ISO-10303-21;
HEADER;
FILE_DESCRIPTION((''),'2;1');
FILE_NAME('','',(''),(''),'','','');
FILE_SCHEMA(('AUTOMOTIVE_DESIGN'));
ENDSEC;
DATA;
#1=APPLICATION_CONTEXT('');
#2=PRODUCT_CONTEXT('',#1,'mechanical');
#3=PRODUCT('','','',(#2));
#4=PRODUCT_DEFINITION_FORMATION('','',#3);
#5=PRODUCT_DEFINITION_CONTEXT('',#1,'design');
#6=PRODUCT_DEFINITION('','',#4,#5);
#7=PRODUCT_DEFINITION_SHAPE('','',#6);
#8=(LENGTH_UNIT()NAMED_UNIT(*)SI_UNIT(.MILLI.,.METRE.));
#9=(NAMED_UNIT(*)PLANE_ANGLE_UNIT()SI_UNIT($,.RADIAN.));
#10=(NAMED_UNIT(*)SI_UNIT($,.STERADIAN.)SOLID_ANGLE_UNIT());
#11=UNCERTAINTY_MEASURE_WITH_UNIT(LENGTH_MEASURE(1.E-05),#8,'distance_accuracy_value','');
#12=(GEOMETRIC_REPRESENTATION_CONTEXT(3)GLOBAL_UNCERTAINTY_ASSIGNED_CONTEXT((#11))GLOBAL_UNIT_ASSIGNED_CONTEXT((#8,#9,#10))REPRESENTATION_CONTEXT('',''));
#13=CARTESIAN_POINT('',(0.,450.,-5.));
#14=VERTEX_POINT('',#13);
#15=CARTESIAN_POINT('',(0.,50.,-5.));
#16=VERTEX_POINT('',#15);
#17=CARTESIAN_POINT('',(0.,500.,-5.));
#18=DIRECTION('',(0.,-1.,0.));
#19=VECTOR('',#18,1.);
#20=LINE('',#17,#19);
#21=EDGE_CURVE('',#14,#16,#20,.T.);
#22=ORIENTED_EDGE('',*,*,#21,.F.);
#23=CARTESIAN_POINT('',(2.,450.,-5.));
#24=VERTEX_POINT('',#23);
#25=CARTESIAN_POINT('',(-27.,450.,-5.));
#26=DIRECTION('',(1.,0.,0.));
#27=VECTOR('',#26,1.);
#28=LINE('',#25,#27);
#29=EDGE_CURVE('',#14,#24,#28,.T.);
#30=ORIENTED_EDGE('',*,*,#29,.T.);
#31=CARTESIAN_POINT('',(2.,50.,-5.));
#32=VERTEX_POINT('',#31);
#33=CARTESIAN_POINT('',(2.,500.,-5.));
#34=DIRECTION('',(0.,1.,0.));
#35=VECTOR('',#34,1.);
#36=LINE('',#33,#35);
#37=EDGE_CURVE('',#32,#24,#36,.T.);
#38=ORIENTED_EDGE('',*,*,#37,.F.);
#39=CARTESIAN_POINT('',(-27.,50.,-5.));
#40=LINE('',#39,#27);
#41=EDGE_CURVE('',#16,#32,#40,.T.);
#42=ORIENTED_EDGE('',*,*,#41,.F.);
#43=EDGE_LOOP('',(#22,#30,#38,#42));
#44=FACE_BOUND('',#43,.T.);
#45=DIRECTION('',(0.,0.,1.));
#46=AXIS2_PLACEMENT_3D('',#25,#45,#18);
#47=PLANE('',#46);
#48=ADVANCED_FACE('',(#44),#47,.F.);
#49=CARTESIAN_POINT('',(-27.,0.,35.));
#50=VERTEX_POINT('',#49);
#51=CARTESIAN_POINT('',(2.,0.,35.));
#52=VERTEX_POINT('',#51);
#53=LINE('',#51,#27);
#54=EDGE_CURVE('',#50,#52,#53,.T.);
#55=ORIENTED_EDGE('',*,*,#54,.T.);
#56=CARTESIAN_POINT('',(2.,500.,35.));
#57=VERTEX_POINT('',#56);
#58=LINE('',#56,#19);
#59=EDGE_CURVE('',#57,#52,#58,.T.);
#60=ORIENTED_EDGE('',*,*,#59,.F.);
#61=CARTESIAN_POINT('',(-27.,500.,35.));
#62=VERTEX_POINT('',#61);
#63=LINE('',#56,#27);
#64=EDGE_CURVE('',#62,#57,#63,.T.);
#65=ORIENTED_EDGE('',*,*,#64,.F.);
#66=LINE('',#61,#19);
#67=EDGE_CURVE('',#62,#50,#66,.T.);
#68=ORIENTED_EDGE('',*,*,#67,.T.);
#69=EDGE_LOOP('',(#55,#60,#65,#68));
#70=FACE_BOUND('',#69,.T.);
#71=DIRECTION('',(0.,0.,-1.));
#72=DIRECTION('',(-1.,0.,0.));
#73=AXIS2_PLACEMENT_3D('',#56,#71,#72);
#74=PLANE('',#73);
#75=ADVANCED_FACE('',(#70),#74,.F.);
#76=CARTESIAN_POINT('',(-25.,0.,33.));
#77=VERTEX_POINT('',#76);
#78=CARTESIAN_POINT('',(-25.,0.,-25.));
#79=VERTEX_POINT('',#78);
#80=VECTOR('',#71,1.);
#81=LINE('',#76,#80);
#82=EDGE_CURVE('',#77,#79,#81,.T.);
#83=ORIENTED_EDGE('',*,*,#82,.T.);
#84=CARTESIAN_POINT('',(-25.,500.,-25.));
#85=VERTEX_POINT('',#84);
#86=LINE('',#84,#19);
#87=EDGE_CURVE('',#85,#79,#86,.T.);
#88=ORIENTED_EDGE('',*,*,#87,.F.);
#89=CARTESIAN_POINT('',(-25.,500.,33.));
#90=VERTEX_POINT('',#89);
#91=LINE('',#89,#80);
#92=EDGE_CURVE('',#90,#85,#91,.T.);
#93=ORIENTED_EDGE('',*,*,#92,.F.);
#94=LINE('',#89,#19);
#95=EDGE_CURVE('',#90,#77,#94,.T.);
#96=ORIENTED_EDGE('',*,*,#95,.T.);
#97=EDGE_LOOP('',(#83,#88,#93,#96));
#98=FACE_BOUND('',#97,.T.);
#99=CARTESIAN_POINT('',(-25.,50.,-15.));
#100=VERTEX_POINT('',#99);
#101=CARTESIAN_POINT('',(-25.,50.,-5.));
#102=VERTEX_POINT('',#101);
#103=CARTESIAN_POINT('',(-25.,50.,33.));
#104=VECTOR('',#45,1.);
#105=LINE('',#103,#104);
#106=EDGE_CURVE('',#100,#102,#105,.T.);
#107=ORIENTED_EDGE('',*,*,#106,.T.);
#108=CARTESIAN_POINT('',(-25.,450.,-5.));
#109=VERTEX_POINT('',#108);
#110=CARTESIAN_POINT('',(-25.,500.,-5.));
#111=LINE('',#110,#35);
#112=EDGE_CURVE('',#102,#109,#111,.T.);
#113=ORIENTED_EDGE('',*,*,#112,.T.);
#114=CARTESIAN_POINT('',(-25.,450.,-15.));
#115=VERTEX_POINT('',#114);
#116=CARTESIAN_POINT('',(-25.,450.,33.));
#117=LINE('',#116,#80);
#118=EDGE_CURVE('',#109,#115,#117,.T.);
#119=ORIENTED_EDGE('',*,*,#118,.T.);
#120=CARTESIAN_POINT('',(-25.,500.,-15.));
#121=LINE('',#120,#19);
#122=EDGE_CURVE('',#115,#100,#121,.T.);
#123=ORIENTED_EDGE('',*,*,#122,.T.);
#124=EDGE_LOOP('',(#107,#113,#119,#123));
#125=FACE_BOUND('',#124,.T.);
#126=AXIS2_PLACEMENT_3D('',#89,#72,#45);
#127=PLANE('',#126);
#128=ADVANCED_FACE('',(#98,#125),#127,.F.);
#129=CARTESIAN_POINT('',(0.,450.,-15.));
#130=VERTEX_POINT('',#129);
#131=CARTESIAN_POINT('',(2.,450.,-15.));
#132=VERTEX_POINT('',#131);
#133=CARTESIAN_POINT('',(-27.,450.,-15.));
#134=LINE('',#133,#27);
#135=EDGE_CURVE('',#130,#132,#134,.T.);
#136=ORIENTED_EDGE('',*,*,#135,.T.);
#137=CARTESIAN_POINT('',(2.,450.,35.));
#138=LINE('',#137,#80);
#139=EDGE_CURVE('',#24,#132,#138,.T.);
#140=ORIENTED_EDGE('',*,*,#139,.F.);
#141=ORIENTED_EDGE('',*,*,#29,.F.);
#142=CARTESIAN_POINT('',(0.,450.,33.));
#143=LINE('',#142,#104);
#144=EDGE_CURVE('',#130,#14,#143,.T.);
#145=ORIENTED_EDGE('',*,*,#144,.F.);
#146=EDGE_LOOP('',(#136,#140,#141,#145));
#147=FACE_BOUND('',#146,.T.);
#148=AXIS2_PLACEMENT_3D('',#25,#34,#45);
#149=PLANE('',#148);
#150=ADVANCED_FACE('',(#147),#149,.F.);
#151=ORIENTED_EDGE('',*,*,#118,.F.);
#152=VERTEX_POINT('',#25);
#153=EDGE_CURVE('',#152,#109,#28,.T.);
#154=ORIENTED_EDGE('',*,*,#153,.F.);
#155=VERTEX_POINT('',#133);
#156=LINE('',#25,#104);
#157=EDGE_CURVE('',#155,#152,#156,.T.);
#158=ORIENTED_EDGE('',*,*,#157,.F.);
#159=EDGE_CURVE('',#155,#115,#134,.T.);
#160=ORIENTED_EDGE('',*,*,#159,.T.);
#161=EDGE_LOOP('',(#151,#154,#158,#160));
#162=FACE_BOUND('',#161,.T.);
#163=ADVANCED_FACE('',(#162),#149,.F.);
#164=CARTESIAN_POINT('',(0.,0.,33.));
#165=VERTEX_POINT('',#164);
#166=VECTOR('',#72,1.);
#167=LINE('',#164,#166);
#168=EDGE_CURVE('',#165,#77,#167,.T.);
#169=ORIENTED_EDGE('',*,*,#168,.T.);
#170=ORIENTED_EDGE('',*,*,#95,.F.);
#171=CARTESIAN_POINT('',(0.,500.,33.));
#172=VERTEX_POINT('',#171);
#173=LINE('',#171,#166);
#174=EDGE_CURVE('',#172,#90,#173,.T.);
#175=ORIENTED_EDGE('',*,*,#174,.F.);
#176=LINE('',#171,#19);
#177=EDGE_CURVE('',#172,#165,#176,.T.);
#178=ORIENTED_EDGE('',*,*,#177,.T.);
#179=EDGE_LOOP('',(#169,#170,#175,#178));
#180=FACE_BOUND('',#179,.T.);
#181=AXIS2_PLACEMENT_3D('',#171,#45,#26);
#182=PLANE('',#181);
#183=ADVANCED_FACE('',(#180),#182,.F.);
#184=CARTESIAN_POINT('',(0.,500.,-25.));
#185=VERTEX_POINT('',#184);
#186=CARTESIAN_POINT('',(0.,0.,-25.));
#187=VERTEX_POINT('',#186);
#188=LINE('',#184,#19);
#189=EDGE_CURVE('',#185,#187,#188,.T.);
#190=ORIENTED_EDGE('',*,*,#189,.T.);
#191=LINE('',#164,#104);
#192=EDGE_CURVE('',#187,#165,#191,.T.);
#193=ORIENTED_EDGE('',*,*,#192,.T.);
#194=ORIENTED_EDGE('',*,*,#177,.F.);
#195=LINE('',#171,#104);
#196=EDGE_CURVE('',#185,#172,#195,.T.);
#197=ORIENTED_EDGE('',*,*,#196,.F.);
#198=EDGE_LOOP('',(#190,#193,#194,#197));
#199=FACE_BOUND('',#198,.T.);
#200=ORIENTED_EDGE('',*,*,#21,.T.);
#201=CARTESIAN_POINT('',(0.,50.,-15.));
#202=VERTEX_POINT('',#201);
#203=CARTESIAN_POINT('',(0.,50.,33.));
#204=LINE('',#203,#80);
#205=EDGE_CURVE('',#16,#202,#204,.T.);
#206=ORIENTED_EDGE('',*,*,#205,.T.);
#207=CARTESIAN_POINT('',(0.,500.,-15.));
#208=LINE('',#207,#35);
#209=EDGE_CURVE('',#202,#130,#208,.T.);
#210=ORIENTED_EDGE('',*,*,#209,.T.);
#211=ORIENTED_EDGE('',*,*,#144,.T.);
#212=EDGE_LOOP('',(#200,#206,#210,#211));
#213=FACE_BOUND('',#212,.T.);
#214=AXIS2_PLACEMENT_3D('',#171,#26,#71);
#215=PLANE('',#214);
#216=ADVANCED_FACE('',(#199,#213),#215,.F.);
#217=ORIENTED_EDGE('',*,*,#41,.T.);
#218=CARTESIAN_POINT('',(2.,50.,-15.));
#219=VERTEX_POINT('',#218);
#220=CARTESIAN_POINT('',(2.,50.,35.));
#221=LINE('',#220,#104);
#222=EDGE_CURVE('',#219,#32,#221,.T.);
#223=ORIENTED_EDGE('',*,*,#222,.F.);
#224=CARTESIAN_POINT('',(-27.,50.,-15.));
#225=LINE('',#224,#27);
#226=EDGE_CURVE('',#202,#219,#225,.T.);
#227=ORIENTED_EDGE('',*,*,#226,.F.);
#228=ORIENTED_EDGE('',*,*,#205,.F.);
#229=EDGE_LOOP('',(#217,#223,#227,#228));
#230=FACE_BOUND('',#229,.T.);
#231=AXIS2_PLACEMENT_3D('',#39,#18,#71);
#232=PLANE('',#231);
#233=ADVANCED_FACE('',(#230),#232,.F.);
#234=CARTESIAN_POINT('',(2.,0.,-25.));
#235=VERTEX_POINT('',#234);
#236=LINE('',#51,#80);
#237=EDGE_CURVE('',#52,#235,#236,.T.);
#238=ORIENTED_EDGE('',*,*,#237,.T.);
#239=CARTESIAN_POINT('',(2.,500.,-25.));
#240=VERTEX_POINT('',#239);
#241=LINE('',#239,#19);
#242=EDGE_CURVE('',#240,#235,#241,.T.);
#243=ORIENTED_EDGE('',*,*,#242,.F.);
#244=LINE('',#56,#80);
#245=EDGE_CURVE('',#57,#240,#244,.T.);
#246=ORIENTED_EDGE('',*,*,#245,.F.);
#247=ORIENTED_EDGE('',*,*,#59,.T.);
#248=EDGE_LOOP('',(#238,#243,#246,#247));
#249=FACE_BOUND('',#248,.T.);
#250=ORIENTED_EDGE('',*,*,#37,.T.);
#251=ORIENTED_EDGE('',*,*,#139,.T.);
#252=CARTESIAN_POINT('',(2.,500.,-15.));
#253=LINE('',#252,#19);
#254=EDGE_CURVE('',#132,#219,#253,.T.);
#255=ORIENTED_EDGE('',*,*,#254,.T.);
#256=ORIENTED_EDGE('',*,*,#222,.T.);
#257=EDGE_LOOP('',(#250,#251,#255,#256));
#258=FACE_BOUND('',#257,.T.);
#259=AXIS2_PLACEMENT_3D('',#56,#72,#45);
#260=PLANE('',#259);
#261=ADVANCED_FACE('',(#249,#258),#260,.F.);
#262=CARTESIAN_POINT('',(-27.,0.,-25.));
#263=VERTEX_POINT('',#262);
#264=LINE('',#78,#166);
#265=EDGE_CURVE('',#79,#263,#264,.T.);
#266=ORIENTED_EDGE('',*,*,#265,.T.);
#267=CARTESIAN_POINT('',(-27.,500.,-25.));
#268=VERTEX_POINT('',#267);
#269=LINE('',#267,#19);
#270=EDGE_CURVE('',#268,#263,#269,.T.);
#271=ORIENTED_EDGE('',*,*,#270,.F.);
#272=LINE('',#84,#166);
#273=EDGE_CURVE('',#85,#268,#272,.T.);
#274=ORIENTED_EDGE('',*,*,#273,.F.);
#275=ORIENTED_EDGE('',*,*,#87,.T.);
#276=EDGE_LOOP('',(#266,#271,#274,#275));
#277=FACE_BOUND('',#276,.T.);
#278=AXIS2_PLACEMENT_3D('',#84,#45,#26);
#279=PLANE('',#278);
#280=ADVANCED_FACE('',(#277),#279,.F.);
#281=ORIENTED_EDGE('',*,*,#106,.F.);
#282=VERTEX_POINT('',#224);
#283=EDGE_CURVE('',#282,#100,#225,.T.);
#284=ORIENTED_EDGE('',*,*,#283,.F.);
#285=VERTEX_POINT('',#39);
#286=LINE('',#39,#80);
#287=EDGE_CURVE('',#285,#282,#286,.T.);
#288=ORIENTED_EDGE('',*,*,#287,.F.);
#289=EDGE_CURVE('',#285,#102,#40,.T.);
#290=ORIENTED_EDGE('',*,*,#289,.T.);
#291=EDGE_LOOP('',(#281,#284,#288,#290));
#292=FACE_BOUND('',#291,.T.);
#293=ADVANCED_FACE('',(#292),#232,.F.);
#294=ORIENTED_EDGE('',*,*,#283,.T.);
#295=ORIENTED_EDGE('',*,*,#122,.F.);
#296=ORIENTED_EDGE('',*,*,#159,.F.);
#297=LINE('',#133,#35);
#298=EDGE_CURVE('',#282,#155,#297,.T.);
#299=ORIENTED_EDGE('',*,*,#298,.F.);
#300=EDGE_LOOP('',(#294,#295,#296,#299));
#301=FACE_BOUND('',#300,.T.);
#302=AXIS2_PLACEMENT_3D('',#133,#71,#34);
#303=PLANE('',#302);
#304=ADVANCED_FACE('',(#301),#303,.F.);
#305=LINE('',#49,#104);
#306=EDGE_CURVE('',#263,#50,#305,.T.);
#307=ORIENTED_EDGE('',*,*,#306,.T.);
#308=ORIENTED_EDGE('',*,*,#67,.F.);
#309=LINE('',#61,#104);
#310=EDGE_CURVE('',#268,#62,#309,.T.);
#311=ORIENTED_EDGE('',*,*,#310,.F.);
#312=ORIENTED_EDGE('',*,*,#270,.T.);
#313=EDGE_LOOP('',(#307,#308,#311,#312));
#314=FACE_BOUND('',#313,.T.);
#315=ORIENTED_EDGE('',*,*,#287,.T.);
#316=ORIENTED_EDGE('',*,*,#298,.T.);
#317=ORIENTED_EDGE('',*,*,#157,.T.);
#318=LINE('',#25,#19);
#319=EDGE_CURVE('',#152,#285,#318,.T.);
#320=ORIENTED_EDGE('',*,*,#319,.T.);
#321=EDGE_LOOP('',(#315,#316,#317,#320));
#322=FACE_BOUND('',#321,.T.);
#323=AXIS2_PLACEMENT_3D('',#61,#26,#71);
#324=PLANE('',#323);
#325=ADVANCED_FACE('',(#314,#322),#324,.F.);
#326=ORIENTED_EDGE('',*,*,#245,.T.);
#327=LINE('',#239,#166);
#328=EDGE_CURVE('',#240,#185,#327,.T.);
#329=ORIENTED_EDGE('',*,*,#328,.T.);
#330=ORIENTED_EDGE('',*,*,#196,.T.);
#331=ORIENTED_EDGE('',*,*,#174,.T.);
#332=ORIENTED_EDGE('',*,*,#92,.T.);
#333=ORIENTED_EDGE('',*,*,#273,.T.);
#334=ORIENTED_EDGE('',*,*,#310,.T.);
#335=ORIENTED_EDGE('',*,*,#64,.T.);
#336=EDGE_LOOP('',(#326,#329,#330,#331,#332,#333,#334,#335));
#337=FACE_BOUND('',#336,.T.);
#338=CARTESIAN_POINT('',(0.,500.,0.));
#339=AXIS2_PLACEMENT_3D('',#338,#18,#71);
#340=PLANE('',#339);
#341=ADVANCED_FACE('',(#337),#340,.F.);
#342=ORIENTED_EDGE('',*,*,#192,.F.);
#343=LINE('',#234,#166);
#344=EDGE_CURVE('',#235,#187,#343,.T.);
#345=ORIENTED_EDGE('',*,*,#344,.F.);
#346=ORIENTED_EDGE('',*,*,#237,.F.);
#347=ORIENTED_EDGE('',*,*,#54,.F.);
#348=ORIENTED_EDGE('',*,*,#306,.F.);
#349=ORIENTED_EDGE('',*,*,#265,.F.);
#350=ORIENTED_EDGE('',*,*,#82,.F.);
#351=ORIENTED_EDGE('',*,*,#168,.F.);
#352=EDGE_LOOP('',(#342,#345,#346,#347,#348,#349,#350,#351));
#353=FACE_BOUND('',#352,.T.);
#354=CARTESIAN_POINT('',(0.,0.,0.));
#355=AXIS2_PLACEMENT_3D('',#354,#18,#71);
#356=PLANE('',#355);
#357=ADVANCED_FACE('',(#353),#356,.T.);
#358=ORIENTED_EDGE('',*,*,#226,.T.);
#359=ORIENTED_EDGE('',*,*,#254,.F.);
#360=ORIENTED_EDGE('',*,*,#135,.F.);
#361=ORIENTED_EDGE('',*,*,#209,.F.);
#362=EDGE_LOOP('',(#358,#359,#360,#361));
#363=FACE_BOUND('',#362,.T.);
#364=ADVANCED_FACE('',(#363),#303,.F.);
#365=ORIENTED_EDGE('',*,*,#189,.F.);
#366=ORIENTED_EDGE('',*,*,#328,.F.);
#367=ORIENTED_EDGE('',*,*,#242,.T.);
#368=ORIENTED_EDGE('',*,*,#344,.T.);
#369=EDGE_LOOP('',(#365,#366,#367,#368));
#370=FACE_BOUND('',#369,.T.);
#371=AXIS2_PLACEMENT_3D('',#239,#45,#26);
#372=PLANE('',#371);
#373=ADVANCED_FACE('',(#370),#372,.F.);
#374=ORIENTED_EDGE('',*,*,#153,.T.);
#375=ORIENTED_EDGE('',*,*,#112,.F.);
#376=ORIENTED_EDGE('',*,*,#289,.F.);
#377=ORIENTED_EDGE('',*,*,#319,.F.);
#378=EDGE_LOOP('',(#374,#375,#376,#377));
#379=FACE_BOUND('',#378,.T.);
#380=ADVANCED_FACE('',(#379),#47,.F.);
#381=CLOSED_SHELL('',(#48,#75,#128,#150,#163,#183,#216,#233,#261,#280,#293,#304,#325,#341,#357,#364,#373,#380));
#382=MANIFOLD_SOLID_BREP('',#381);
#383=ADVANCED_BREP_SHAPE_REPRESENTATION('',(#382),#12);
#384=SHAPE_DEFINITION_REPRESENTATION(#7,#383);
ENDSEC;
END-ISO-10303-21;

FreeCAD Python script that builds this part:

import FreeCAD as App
import Part
import Sketcher

V = App.Vector
Q = App.Units.Quantity


def add_polygon(sketch, points):
    """Adds a closed chain of lines whose ends are joined by coincident constraints."""
    first, n = sketch.GeometryCount, len(points)
    for a, b in zip(points, points[1:] + points[:1]):
        sketch.addGeometry(Part.LineSegment(App.Vector(*a, 0), App.Vector(*b, 0)), False)
    for i in range(n):
        sketch.addConstraint(Sketcher.Constraint("Coincident", first + i, 2, first + (i + 1) % n, 1))

doc = App.newDocument("Part")
body = doc.addObject("PartDesign::Body", "Body")

# Sketch on XZ plane
sketch1 = doc.addObject("Sketcher::SketchObject", "Sketch")
body.addObject(sketch1)
sketch1.AttachmentSupport = (doc.XZ_Plane, [""])
sketch1.MapMode = "FlatFace"
add_polygon(sketch1, [(-25, 33), (-25, -25), (-27, -25), (-27, 35), (2, 35), (2, -25), (0, -25), (0, 33)])  # lines 0-7
sketch1.addConstraint(Sketcher.Constraint("Vertical", 0))
sketch1.addConstraint(Sketcher.Constraint("Horizontal", 1))
sketch1.addConstraint(Sketcher.Constraint("Vertical", 2))
sketch1.addConstraint(Sketcher.Constraint("Horizontal", 3))
sketch1.addConstraint(Sketcher.Constraint("Vertical", 4))
sketch1.addConstraint(Sketcher.Constraint("Horizontal", 5))
sketch1.addConstraint(Sketcher.Constraint("Vertical", 6))
sketch1.addConstraint(Sketcher.Constraint("Horizontal", 7))
sketch1.addConstraint(Sketcher.Constraint("PointOnObject", 5, 2, -2))
sketch1.addConstraint(Sketcher.Constraint("Horizontal", 1, 2, 4, 2))
sketch1.addConstraint(Sketcher.Constraint("Equal", 1, 5))
sketch1.addConstraint(Sketcher.Constraint("DistanceX", 1, 2, 1, 1, Q("2 mm")))
sketch1.addConstraint(Sketcher.Constraint("DistanceX", 3, 1, 3, 2, Q("29 mm")))
sketch1.addConstraint(Sketcher.Constraint("DistanceY", 0, 2, 0, 1, Q("58 mm")))
sketch1.addConstraint(Sketcher.Constraint("DistanceY", 2, 1, 2, 2, Q("60 mm")))
sketch1.addConstraint(Sketcher.Constraint("DistanceY", 0, 2, -1, 1, Q("25 mm")))
pad1 = doc.addObject("PartDesign::Pad", "Pad")
body.addObject(pad1)
pad1.Profile = sketch1
pad1.Length = 500
pad1.Reversed = True

# Sketch on YZ plane
sketch2 = doc.addObject("Sketcher::SketchObject", "Sketch001")
body.addObject(sketch2)
sketch2.AttachmentSupport = (doc.YZ_Plane, [""])
sketch2.MapMode = "FlatFace"
sketch2.AttachmentOffset = App.Placement(V(0, 0, 2), App.Rotation())
add_polygon(sketch2, [(450, -5), (50, -5), (50, -15), (450, -15)])  # lines 0-3
sketch2.addConstraint(Sketcher.Constraint("Horizontal", 0))
sketch2.addConstraint(Sketcher.Constraint("Vertical", 1))
sketch2.addConstraint(Sketcher.Constraint("Horizontal", 2))
sketch2.addConstraint(Sketcher.Constraint("Vertical", 3))
sketch2.addConstraint(Sketcher.Constraint("DistanceX", 0, 2, 0, 1, Q("400 mm")))
sketch2.addConstraint(Sketcher.Constraint("DistanceY", 1, 2, 1, 1, Q("10 mm")))
sketch2.addConstraint(Sketcher.Constraint("DistanceX", -1, 1, 0, 2, Q("50 mm")))
sketch2.addConstraint(Sketcher.Constraint("DistanceY", 0, 2, -1, 1, Q("5 mm")))
pocket1 = doc.addObject("PartDesign::Pocket", "Pocket")
body.addObject(pocket1)
pocket1.Profile = sketch2
pocket1.Type = "ThroughAll"
pocket1.Midplane = True

doc.recompute()
